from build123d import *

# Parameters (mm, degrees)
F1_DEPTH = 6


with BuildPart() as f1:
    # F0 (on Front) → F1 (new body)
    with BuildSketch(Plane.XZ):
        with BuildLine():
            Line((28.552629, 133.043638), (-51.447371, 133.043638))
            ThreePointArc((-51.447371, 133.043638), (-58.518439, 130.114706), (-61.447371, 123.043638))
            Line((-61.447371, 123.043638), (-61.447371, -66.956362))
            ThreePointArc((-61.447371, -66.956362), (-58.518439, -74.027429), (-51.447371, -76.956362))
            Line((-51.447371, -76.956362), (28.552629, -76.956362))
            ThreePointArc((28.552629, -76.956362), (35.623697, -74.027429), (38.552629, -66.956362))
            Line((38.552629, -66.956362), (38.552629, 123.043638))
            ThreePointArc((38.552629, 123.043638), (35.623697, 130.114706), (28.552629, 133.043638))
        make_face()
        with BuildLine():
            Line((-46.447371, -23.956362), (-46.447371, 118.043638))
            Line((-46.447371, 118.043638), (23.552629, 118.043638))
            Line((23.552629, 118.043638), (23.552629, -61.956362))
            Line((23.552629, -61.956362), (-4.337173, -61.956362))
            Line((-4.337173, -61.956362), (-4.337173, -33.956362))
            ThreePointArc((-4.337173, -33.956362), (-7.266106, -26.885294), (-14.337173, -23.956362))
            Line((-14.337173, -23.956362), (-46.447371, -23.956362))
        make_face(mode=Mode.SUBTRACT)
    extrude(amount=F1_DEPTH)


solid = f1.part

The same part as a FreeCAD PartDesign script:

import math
import FreeCAD as App
import Part
import Sketcher

V = App.Vector

doc = App.newDocument("Part")
body = doc.addObject("PartDesign::Body", "Body")

# Sketch on XZ plane
sketch1 = doc.addObject("Sketcher::SketchObject", "Sketch")
body.addObject(sketch1)
sketch1.AttachmentSupport = (doc.XZ_Plane, [""])
sketch1.MapMode = "FlatFace"
sketch1.addGeometry([
    Part.LineSegment(V(29, 133, 0), V(-51, 133, 0)),  # 0
    Part.ArcOfCircle(Part.Circle(V(-51, 123, 0), V(0, 0, 1), 10), math.radians(90), math.radians(180)),  # 1
    Part.LineSegment(V(-61, 123, 0), V(-61, -67, 0)),  # 2
    Part.ArcOfCircle(Part.Circle(V(-51, -67, 0), V(0, 0, 1), 10), math.radians(-180), math.radians(-90)),  # 3
    Part.LineSegment(V(-51, -77, 0), V(29, -77, 0)),  # 4
    Part.ArcOfCircle(Part.Circle(V(29, -67, 0), V(0, 0, 1), 10), math.radians(-90), math.radians(0)),  # 5
    Part.LineSegment(V(39, -67, 0), V(39, 123, 0)),  # 6
    Part.ArcOfCircle(Part.Circle(V(29, 123, 0), V(0, 0, 1), 10), math.radians(0), math.radians(90)),  # 7
    Part.LineSegment(V(-14, -24, 0), V(-46, -24, 0)),  # 8
    Part.LineSegment(V(-46, -24, 0), V(-46, 118, 0)),  # 9
    Part.LineSegment(V(-46, 118, 0), V(24, 118, 0)),  # 10
    Part.LineSegment(V(24, 118, 0), V(24, -62, 0)),  # 11
    Part.LineSegment(V(24, -62, 0), V(-4, -62, 0)),  # 12
    Part.LineSegment(V(-4, -62, 0), V(-4, -34, 0)),  # 13
    Part.ArcOfCircle(Part.Circle(V(-14, -34, 0), V(0, 0, 1), 10), math.radians(0), math.radians(90)),  # 14
], False)
sketch1.addConstraint([
    Sketcher.Constraint("Tangent", 0, 2, 1, 1),
    Sketcher.Constraint("Tangent", 1, 2, 2, 1),
    Sketcher.Constraint("Tangent", 2, 2, 3, 1),
    Sketcher.Constraint("Tangent", 3, 2, 4, 1),
    Sketcher.Constraint("Tangent", 4, 2, 5, 1),
    Sketcher.Constraint("Tangent", 5, 2, 6, 1),
    Sketcher.Constraint("Tangent", 6, 2, 7, 1),
    Sketcher.Constraint("Tangent", 7, 2, 0, 1),
    Sketcher.Constraint("Coincident", 8, 2, 9, 1),
    Sketcher.Constraint("Coincident", 9, 2, 10, 1),
    Sketcher.Constraint("Coincident", 10, 2, 11, 1),
    Sketcher.Constraint("Coincident", 11, 2, 12, 1),
    Sketcher.Constraint("Coincident", 12, 2, 13, 1),
    Sketcher.Constraint("Tangent", 13, 2, 14, 1),
    Sketcher.Constraint("Tangent", 14, 2, 8, 1),
    Sketcher.Constraint("Horizontal", 0),
    Sketcher.Constraint("Vertical", 2),
    Sketcher.Constraint("Horizontal", 4),
    Sketcher.Constraint("Vertical", 6),
    Sketcher.Constraint("Horizontal", 8),
    Sketcher.Constraint("Vertical", 9),
    Sketcher.Constraint("Horizontal", 10),
    Sketcher.Constraint("Vertical", 11),
    Sketcher.Constraint("Horizontal", 12),
    Sketcher.Constraint("Vertical", 13),
    Sketcher.Constraint("Equal", 1, 3),
    Sketcher.Constraint("Equal", 3, 5),
    Sketcher.Constraint("Equal", 5, 7),
    Sketcher.Constraint("Equal", 7, 14),
    Sketcher.Constraint("Radius", 1, 9.999999),
    Sketcher.Constraint("DistanceX", 0, 2, 0, 1, 80.0),
    Sketcher.Constraint("DistanceX", 10, 1, 10, 2, 70.0),
    Sketcher.Constraint("DistanceY", 2, 2, 2, 1, 190.0),
    Sketcher.Constraint("DistanceY", 9, 1, 9, 2, 142.0),
    Sketcher.Constraint("DistanceY", 11, 2, 11, 1, 180.0),
    Sketcher.Constraint("DistanceY", 14, 3, 1, 3, 157.000002),
    Sketcher.Constraint("DistanceX", 3, 3, 8, 2, 4.999999),
    Sketcher.Constraint("DistanceX", 12, 2, 12, 1, 27.889802),
    Sketcher.Constraint("DistanceX", 1, 3, -1, 1, 51.447372),
    Sketcher.Constraint("DistanceY", -1, 1, 1, 3, 123.043639),
])
pad1 = doc.addObject("PartDesign::Pad", "Pad")
body.addObject(pad1)
pad1.Profile = sketch1
pad1.Length = 6

doc.recompute()
